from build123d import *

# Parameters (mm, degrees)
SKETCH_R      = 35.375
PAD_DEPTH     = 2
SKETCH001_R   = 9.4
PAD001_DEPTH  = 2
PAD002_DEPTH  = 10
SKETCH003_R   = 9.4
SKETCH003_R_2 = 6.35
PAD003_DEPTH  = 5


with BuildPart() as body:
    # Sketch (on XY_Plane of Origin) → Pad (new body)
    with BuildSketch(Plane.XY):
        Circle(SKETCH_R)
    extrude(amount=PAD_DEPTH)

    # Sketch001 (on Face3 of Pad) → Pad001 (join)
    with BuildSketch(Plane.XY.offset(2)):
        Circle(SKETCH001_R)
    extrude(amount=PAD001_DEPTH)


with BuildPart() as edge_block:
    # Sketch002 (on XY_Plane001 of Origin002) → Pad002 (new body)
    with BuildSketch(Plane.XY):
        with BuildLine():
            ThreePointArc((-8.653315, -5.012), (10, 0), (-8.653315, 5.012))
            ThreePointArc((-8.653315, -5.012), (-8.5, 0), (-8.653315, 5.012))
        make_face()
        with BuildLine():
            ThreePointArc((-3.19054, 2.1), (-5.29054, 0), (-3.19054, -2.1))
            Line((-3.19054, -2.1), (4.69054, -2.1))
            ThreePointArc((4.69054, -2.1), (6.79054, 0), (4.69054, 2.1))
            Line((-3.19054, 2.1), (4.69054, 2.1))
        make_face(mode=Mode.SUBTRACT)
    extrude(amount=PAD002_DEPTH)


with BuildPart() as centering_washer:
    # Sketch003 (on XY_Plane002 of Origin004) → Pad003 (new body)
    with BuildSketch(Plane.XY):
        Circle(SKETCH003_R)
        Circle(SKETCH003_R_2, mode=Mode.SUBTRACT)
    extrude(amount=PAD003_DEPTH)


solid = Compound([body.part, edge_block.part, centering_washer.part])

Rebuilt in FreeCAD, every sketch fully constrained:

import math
import FreeCAD as App
import Part
import Sketcher

V = App.Vector

doc = App.newDocument("Part")
body = doc.addObject("PartDesign::Body", "Body")

# Sketch on XY plane
sketch1 = doc.addObject("Sketcher::SketchObject", "Sketch")
body.addObject(sketch1)
sketch1.AttachmentSupport = (doc.XY_Plane, [""])
sketch1.MapMode = "FlatFace"
sketch1.addGeometry(Part.Circle(V(0, 0, 0), V(0, 0, 1), 35.375), False)
sketch1.addConstraint([
    Sketcher.Constraint("Coincident", 0, 3, -1, 1),
    Sketcher.Constraint("Diameter", 0, 70.75),
])
pad1 = doc.addObject("PartDesign::Pad", "Pad")
body.addObject(pad1)
pad1.Profile = sketch1
pad1.Length = 2

# Sketch on XY plane
sketch2 = doc.addObject("Sketcher::SketchObject", "Sketch001")
body.addObject(sketch2)
sketch2.AttachmentSupport = (doc.XY_Plane, [""])
sketch2.MapMode = "FlatFace"
sketch2.AttachmentOffset = App.Placement(V(0, 0, 2), App.Rotation())
sketch2.addGeometry(Part.Circle(V(0, 0, 0), V(0, 0, 1), 9.4), False)
sketch2.addConstraint([
    Sketcher.Constraint("Coincident", 0, 3, -1, 1),
    Sketcher.Constraint("Diameter", 0, 18.8),
])
pad2 = doc.addObject("PartDesign::Pad", "Pad001")
body.addObject(pad2)
pad2.Profile = sketch2
pad2.Length = 2
body2 = doc.addObject("PartDesign::Body", "Body001")

# Sketch on XY plane
sketch3 = doc.addObject("Sketcher::SketchObject", "Sketch002")
body2.addObject(sketch3)
sketch3.AttachmentSupport = (doc.getObject("XY_Plane001"), [""])
sketch3.MapMode = "FlatFace"
sketch3.addGeometry([
    Part.ArcOfCircle(Part.Circle(V(0, 0, 0), V(0, 0, 1), 10), math.radians(-149.920577), math.radians(149.920577)),  # 0
    Part.ArcOfCircle(Part.Circle(V(-90.499966, 0, 0), V(0, 0, 1), 81.999966), math.radians(-3.504216), math.radians(3.504216)),  # 1
    Part.ArcOfCircle(Part.Circle(V(-3.19054, 0, 0), V(0, 0, 1), 2.1), math.radians(90), math.radians(270)),  # 2
    Part.LineSegment(V(-3.19054, 2.1, 0), V(4.69054, 2.1, 0)),  # 3
    Part.ArcOfCircle(Part.Circle(V(4.69054, 0, 0), V(0, 0, 1), 2.1), math.radians(-90), math.radians(90)),  # 4
    Part.LineSegment(V(4.69054, -2.1, 0), V(-3.19054, -2.1, 0)),  # 5
], False)
sketch3.addConstraint([
    Sketcher.Constraint("Coincident", 0, 1, 1, 1),
    Sketcher.Constraint("Coincident", 1, 2, 0, 2),
    Sketcher.Constraint("Tangent", 2, 1, 3, 1),
    Sketcher.Constraint("Tangent", 3, 2, 4, 2),
    Sketcher.Constraint("Tangent", 4, 1, 5, 1),
    Sketcher.Constraint("Tangent", 5, 2, 2, 2),
    Sketcher.Constraint("Horizontal", 3),
    Sketcher.Constraint("Horizontal", 5),
    Sketcher.Constraint("Coincident", 0, 3, -1, 1),
    Sketcher.Constraint("PointOnObject", 1, 3, -1),
    Sketcher.Constraint("PointOnObject", 2, 3, -1),
    Sketcher.Constraint("Radius", 0, 10.0),
    Sketcher.Constraint("Radius", 2, 2.1),
    Sketcher.Constraint("DistanceY", 0, 1, -1, 1, 5.012),
    Sketcher.Constraint("Radius", 1, 81.999966),
    Sketcher.Constraint("DistanceX", 3, 1, 3, 2, 7.88108),
    Sketcher.Constraint("DistanceX", 2, 3, -1, 1, 3.19054),
])
pad3 = doc.addObject("PartDesign::Pad", "Pad002")
body2.addObject(pad3)
pad3.Profile = sketch3
pad3.Length = 10
body3 = doc.addObject("PartDesign::Body", "Body002")

# Sketch on XY plane
sketch4 = doc.addObject("Sketcher::SketchObject", "Sketch003")
body3.addObject(sketch4)
sketch4.AttachmentSupport = (doc.getObject("XY_Plane002"), [""])
sketch4.MapMode = "FlatFace"
sketch4.addGeometry([
    Part.Circle(V(0, 0, 0), V(0, 0, 1), 9.4),
    Part.Circle(V(0, 0, 0), V(0, 0, 1), 6.35),
], False)
sketch4.addConstraint([
    Sketcher.Constraint("Coincident", 0, 3, -1, 1),
    Sketcher.Constraint("Coincident", 1, 3, -1, 1),
    Sketcher.Constraint("Diameter", 0, 18.8),
    Sketcher.Constraint("Diameter", 1, 12.7),
])
pad4 = doc.addObject("PartDesign::Pad", "Pad003")
body3.addObject(pad4)
pad4.Profile = sketch4
pad4.Length = 5

doc.recompute()
